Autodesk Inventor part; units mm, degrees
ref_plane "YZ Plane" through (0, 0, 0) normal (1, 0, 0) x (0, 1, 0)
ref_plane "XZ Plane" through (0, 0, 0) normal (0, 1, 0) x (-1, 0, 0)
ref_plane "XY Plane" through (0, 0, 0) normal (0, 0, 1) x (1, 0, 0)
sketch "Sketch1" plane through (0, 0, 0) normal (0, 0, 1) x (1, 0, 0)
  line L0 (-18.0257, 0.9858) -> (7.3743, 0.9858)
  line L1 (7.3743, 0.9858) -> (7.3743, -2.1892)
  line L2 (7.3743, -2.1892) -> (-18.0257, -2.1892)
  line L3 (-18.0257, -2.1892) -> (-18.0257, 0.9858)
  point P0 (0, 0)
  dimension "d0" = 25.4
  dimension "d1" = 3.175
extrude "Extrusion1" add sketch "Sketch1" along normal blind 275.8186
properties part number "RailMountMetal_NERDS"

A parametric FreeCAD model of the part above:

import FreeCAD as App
import Part
import Sketcher

V = App.Vector
Q = App.Units.Quantity

doc = App.newDocument("Part")
body = doc.addObject("PartDesign::Body", "Body")

# Sketch on XY plane
sketch1 = body.newObject("Sketcher::SketchObject", "Sketch")
sketch1.AttachmentSupport = (doc.getObject("XY_Plane"), [""])
sketch1.MapMode = "FlatFace"
sketch1.addGeometry([
    Part.LineSegment(V(7.4, 1, 0), V(-18, 1, 0)),
    Part.LineSegment(V(-18, 1, 0), V(-18, -2.2, 0)),
    Part.LineSegment(V(-18, -2.2, 0), V(7.4, -2.2, 0)),
    Part.LineSegment(V(7.4, -2.2, 0), V(7.4, 1, 0)),
], False)
sketch1.addConstraint([
    Sketcher.Constraint("Coincident", 0, 2, 1, 1),
    Sketcher.Constraint("Coincident", 1, 2, 2, 1),
    Sketcher.Constraint("Coincident", 2, 2, 3, 1),
    Sketcher.Constraint("Coincident", 3, 2, 0, 1),
    Sketcher.Constraint("Horizontal", 0),
    Sketcher.Constraint("Vertical", 1),
    Sketcher.Constraint("Horizontal", 2),
    Sketcher.Constraint("Vertical", 3),
    Sketcher.Constraint("DistanceX", 0, 2, 0, 1, Q("1 in")),
    Sketcher.Constraint("DistanceY", 1, 2, 1, 1, Q("0.125 in")),
    Sketcher.Constraint("DistanceY", -1, 1, 0, 2, Q("0.0388 in")),
    Sketcher.Constraint("DistanceX", 0, 2, -1, 1, 18.0257),
])
pad1 = body.newObject("PartDesign::Pad", "Pad")
pad1.Profile = sketch1
pad1.Length = Q("10.859 in")

doc.recompute()
